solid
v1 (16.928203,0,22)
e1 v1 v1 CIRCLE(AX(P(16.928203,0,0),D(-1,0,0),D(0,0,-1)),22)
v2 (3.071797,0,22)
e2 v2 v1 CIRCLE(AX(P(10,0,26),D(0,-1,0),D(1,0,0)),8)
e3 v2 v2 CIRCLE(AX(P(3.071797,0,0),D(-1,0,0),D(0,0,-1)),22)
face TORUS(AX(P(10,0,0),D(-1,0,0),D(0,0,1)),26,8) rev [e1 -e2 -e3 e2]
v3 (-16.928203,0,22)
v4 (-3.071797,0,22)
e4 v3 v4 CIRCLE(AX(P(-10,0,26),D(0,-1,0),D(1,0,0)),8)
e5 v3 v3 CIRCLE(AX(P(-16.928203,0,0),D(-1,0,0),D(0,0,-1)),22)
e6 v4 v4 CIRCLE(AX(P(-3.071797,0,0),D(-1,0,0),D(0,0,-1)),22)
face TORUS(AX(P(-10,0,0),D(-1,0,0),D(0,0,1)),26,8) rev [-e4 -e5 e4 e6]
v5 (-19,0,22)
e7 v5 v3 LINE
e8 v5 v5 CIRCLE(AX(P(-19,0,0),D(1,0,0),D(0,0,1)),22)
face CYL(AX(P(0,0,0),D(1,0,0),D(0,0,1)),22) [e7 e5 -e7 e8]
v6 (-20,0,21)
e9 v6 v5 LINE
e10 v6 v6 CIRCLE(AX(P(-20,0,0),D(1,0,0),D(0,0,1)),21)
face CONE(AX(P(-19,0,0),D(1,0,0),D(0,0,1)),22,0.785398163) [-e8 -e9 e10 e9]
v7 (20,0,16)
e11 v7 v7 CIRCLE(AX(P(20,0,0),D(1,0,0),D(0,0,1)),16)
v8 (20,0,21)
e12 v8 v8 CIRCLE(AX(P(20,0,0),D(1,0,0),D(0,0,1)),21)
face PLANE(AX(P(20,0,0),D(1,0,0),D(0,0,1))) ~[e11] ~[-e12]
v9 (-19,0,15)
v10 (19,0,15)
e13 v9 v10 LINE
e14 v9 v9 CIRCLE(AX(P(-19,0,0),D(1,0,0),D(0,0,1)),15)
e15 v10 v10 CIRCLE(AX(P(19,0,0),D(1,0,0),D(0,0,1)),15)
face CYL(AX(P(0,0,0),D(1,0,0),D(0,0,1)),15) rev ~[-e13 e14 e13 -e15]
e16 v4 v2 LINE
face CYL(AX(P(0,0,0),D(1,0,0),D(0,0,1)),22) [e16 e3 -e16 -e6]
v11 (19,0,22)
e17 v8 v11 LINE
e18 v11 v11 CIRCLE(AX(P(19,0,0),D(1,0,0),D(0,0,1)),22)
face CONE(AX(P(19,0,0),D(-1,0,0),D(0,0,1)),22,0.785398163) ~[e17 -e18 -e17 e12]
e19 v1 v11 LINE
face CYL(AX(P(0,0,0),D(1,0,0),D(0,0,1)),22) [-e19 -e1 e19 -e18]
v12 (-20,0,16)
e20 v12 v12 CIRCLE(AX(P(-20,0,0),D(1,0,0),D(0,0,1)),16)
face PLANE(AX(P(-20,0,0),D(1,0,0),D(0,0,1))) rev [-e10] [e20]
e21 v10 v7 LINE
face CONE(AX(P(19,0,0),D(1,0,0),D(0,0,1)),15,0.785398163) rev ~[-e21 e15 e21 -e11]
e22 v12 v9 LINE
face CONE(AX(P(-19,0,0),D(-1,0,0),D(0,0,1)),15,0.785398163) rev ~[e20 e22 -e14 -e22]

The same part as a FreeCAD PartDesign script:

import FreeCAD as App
import Part
import Sketcher
from FreeCAD import Vector


def edges_at(feature, points):
    """Names of the edges that pass closest to the given points."""
    edges = feature.Shape.Edges
    near = lambda p: min(range(len(edges)), key=lambda i: edges[i].distToShape(Part.Vertex(*p))[0])
    return sorted({f"Edge{near(p) + 1}" for p in points})


def add_polygon(sketch, points):
    """Adds a closed chain of lines whose ends are joined by coincident constraints."""
    first, n = sketch.GeometryCount, len(points)
    for a, b in zip(points, points[1:] + points[:1]):
        sketch.addGeometry(Part.LineSegment(App.Vector(*a, 0), App.Vector(*b, 0)), False)
    for i in range(n):
        sketch.addConstraint(Sketcher.Constraint("Coincident", first + i, 2, first + (i + 1) % n, 1))

doc = App.newDocument("Part")
body = doc.addObject("PartDesign::Body", "Body")

# Sketch on XZ plane
sketch1 = body.newObject("Sketcher::SketchObject", "Sketch")
sketch1.AttachmentSupport = (doc.getObject("XZ_Plane"), [""])
sketch1.MapMode = "FlatFace"
add_polygon(sketch1, [(-20, 22), (-20, 15), (20, 15), (20, 22)])  # lines 0-3
sketch1.addConstraint([
    Sketcher.Constraint("Vertical", 0),
    Sketcher.Constraint("Horizontal", 1),
    Sketcher.Constraint("Vertical", 2),
    Sketcher.Constraint("Horizontal", 3),
    Sketcher.Constraint("DistanceX", 1, 1, 1, 2, 40.0),
    Sketcher.Constraint("DistanceY", 0, 2, 0, 1, 7.0),
    Sketcher.Constraint("DistanceX", 0, 2, -1, 1, 20.0),
    Sketcher.Constraint("DistanceY", -1, 1, 0, 2, 15.0),
])
revolution = body.newObject("PartDesign::Revolution", "Revolution")
revolution.Profile = sketch1
revolution.ReferenceAxis = (sketch1, ["H_Axis"])
revolution.Angle = 360
doc.recompute()

chamfer = body.newObject("PartDesign::Chamfer", "Chamfer")
chamfer.Base = (revolution, edges_at(revolution, [
    (-20, 0, -22),
    (-20, 0, -15),
    (20, 0, -22),
    (20, 0, -15),
]))
chamfer.Size = 1

# Sketch on XZ plane
sketch2 = body.newObject("Sketcher::SketchObject", "Sketch001")
sketch2.AttachmentSupport = (doc.getObject("XZ_Plane"), [""])
sketch2.MapMode = "FlatFace"
sketch2.addGeometry([
    Part.Circle(Vector(-10, 26, 0), Vector(0, 0, 1), 8),
    Part.Circle(Vector(10, 26, 0), Vector(0, 0, 1), 8),
], False)
sketch2.addConstraint([
    Sketcher.Constraint("Equal", 0, 1),
    Sketcher.Constraint("Symmetric", 0, 3, 1, 3, -2),
    Sketcher.Constraint("Diameter", 0, 16.0),
    Sketcher.Constraint("DistanceX", 0, 3, -1, 1, 10.0),
    Sketcher.Constraint("DistanceY", -1, 1, 0, 3, 26.0),
])
groove = body.newObject("PartDesign::Groove", "Groove")
groove.Profile = sketch2
groove.ReferenceAxis = (sketch2, ["H_Axis"])
groove.Angle = 360

doc.recompute()
